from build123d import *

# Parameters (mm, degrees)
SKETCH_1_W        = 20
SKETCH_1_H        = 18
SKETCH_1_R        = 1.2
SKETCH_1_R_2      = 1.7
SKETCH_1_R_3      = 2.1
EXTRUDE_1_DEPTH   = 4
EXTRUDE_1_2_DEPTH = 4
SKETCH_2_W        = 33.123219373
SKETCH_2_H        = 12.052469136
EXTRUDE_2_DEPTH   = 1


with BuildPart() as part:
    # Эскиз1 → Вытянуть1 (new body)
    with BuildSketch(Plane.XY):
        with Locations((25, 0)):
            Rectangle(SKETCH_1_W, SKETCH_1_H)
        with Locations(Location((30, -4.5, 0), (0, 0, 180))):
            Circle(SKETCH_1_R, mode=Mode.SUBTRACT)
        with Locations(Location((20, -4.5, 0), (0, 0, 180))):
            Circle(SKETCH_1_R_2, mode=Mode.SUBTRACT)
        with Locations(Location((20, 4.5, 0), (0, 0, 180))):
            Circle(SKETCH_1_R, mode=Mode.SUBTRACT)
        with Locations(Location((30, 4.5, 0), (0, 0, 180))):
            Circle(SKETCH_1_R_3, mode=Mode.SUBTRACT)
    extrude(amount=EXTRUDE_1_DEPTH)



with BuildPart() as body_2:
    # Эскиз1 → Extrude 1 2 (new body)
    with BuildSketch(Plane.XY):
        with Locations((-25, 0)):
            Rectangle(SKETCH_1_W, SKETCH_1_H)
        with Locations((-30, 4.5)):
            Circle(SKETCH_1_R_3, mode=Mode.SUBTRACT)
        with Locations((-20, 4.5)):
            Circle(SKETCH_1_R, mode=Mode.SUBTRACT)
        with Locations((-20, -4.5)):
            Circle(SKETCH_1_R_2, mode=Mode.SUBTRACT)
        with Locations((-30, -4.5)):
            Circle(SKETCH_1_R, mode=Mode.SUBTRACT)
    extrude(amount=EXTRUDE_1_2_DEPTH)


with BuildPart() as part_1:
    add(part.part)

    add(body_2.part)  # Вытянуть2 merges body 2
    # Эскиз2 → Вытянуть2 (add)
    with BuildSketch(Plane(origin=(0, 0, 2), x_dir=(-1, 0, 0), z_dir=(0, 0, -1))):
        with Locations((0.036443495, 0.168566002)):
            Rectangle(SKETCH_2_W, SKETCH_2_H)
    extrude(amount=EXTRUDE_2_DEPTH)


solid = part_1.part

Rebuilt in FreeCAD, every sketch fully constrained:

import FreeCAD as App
import Part
import Sketcher

V = App.Vector
Q = App.Units.Quantity

doc = App.newDocument("Part")
body = doc.addObject("PartDesign::Body", "Body")

# Sketch on XY plane
sketch1 = body.newObject("Sketcher::SketchObject", "Sketch")
sketch1.AttachmentSupport = (doc.getObject("XY_Plane"), [""])
sketch1.MapMode = "FlatFace"
sketch1.addGeometry(Part.LineSegment(V(15, 9, 0), V(15, -9, 0)), False)
sketch1.addGeometry(Part.LineSegment(V(15, -9, 0), V(35, -9, 0)), False)
sketch1.addGeometry(Part.LineSegment(V(35, -9, 0), V(35, 9, 0)), False)
sketch1.addGeometry(Part.LineSegment(V(35, 9, 0), V(15, 9, 0)), False)
sketch1.addGeometry(Part.Circle(V(20, -4.5, 0), V(0, 0, 1), 1.7), False)
sketch1.addGeometry(Part.Circle(V(30, -4.5, 0), V(0, 0, 1), 1.2), False)
sketch1.addGeometry(Part.Circle(V(20, 4.5, 0), V(0, 0, 1), 1.2), False)
sketch1.addGeometry(Part.Circle(V(30, 4.5, 0), V(0, 0, 1), 2.1), False)
sketch1.addConstraint(Sketcher.Constraint("Coincident", 0, 2, 1, 1))
sketch1.addConstraint(Sketcher.Constraint("Coincident", 1, 2, 2, 1))
sketch1.addConstraint(Sketcher.Constraint("Coincident", 2, 2, 3, 1))
sketch1.addConstraint(Sketcher.Constraint("Coincident", 3, 2, 0, 1))
sketch1.addConstraint(Sketcher.Constraint("Vertical", 0))
sketch1.addConstraint(Sketcher.Constraint("Horizontal", 1))
sketch1.addConstraint(Sketcher.Constraint("Vertical", 2))
sketch1.addConstraint(Sketcher.Constraint("Horizontal", 3))
sketch1.addConstraint(Sketcher.Constraint("Equal", 5, 6))
sketch1.addConstraint(Sketcher.Constraint("Symmetric", 4, 3, 6, 3, -1))
sketch1.addConstraint(Sketcher.Constraint("Symmetric", 5, 3, 7, 3, -1))
sketch1.addConstraint(Sketcher.Constraint("Horizontal", 4, 3, 5, 3))
sketch1.addConstraint(Sketcher.Constraint("Diameter", 4, Q("3.4 mm")))
sketch1.addConstraint(Sketcher.Constraint("Diameter", 5, Q("2.4 mm")))
sketch1.addConstraint(Sketcher.Constraint("Diameter", 7, Q("4.2 mm")))
sketch1.addConstraint(Sketcher.Constraint("DistanceX", 1, 1, 1, 2, Q("20 mm")))
sketch1.addConstraint(Sketcher.Constraint("DistanceY", 0, 2, 0, 1, Q("18 mm")))
sketch1.addConstraint(Sketcher.Constraint("DistanceX", -1, 1, 4, 3, Q("20 mm")))
sketch1.addConstraint(Sketcher.Constraint("DistanceX", -1, 1, 5, 3, Q("30 mm")))
sketch1.addConstraint(Sketcher.Constraint("DistanceX", -1, 1, 0, 2, Q("15 mm")))
sketch1.addConstraint(Sketcher.Constraint("DistanceY", 0, 2, -1, 1, Q("9 mm")))
sketch1.addConstraint(Sketcher.Constraint("DistanceY", 4, 3, 6, 3, Q("9 mm")))
pad1 = body.newObject("PartDesign::Pad", "Pad")
pad1.Profile = sketch1
pad1.Length = 4
body2 = doc.addObject("PartDesign::Body", "Body001")

# Sketch on XY plane
sketch2 = body2.newObject("Sketcher::SketchObject", "Sketch001")
sketch2.AttachmentSupport = (doc.getObject("XY_Plane001"), [""])
sketch2.MapMode = "FlatFace"
sketch2.addGeometry(Part.LineSegment(V(-35, 9, 0), V(-35, -9, 0)), False)
sketch2.addGeometry(Part.LineSegment(V(-35, -9, 0), V(-15, -9, 0)), False)
sketch2.addGeometry(Part.LineSegment(V(-15, -9, 0), V(-15, 9, 0)), False)
sketch2.addGeometry(Part.LineSegment(V(-15, 9, 0), V(-35, 9, 0)), False)
sketch2.addGeometry(Part.Circle(V(-30, -4.5, 0), V(0, 0, 1), 1.2), False)
sketch2.addGeometry(Part.Circle(V(-20, -4.5, 0), V(0, 0, 1), 1.7), False)
sketch2.addGeometry(Part.Circle(V(-30, 4.5, 0), V(0, 0, 1), 2.1), False)
sketch2.addGeometry(Part.Circle(V(-20, 4.5, 0), V(0, 0, 1), 1.2), False)
sketch2.addConstraint(Sketcher.Constraint("Coincident", 0, 2, 1, 1))
sketch2.addConstraint(Sketcher.Constraint("Coincident", 1, 2, 2, 1))
sketch2.addConstraint(Sketcher.Constraint("Coincident", 2, 2, 3, 1))
sketch2.addConstraint(Sketcher.Constraint("Coincident", 3, 2, 0, 1))
sketch2.addConstraint(Sketcher.Constraint("Vertical", 0))
sketch2.addConstraint(Sketcher.Constraint("Horizontal", 1))
sketch2.addConstraint(Sketcher.Constraint("Vertical", 2))
sketch2.addConstraint(Sketcher.Constraint("Horizontal", 3))
sketch2.addConstraint(Sketcher.Constraint("Equal", 4, 7))
sketch2.addConstraint(Sketcher.Constraint("Symmetric", 4, 3, 6, 3, -1))
sketch2.addConstraint(Sketcher.Constraint("Symmetric", 5, 3, 7, 3, -1))
sketch2.addConstraint(Sketcher.Constraint("Horizontal", 4, 3, 5, 3))
sketch2.addConstraint(Sketcher.Constraint("Diameter", 4, Q("2.4 mm")))
sketch2.addConstraint(Sketcher.Constraint("Diameter", 5, Q("3.4 mm")))
sketch2.addConstraint(Sketcher.Constraint("Diameter", 6, Q("4.2 mm")))
sketch2.addConstraint(Sketcher.Constraint("DistanceX", 1, 1, 1, 2, Q("20 mm")))
sketch2.addConstraint(Sketcher.Constraint("DistanceY", 0, 2, 0, 1, Q("18 mm")))
sketch2.addConstraint(Sketcher.Constraint("DistanceX", 4, 3, -1, 1, Q("30 mm")))
sketch2.addConstraint(Sketcher.Constraint("DistanceX", 5, 3, -1, 1, Q("20 mm")))
sketch2.addConstraint(Sketcher.Constraint("DistanceX", 0, 2, -1, 1, Q("35 mm")))
sketch2.addConstraint(Sketcher.Constraint("DistanceY", 0, 2, -1, 1, Q("9 mm")))
sketch2.addConstraint(Sketcher.Constraint("DistanceY", 4, 3, 6, 3, Q("9 mm")))
pad2 = body2.newObject("PartDesign::Pad", "Pad001")
pad2.Profile = sketch2
pad2.Length = 4
body.AllowCompound = True
doc.recompute()

boolean = body.newObject("PartDesign::Boolean", "Boolean")
boolean.Type = "Fuse"
boolean.addObjects([body2])

# Sketch on XY plane
sketch3 = body.newObject("Sketcher::SketchObject", "Sketch002")
sketch3.AttachmentSupport = (doc.getObject("XY_Plane"), [""])
sketch3.MapMode = "FlatFace"
sketch3.AttachmentOffset = App.Placement(V(0, 0, 2), App.Rotation())
sketch3.addGeometry(Part.LineSegment(V(16.525166, 6.194801, 0), V(16.525166, -5.857669, 0)), False)
sketch3.addGeometry(Part.LineSegment(V(16.525166, -5.857669, 0), V(-16.598053, -5.857669, 0)), False)
sketch3.addGeometry(Part.LineSegment(V(-16.598053, -5.857669, 0), V(-16.598053, 6.194801, 0)), False)
sketch3.addGeometry(Part.LineSegment(V(-16.598053, 6.194801, 0), V(16.525166, 6.194801, 0)), False)
sketch3.addConstraint(Sketcher.Constraint("Coincident", 0, 2, 1, 1))
sketch3.addConstraint(Sketcher.Constraint("Coincident", 1, 2, 2, 1))
sketch3.addConstraint(Sketcher.Constraint("Coincident", 2, 2, 3, 1))
sketch3.addConstraint(Sketcher.Constraint("Coincident", 3, 2, 0, 1))
sketch3.addConstraint(Sketcher.Constraint("Vertical", 0))
sketch3.addConstraint(Sketcher.Constraint("Horizontal", 1))
sketch3.addConstraint(Sketcher.Constraint("Vertical", 2))
sketch3.addConstraint(Sketcher.Constraint("Horizontal", 3))
sketch3.addConstraint(Sketcher.Constraint("DistanceX", 1, 2, 1, 1, Q("33.123219 mm")))
sketch3.addConstraint(Sketcher.Constraint("DistanceY", 0, 2, 0, 1, Q("12.052469 mm")))
sketch3.addConstraint(Sketcher.Constraint("DistanceY", -1, 1, 2, 2, Q("6.194801 mm")))
sketch3.addConstraint(Sketcher.Constraint("DistanceX", -1, 1, 0, 2, Q("16.525166 mm")))
pad3 = body.newObject("PartDesign::Pad", "Pad002")
pad3.Profile = sketch3
pad3.Length = 1
pad3.Reversed = True

doc.recompute()
